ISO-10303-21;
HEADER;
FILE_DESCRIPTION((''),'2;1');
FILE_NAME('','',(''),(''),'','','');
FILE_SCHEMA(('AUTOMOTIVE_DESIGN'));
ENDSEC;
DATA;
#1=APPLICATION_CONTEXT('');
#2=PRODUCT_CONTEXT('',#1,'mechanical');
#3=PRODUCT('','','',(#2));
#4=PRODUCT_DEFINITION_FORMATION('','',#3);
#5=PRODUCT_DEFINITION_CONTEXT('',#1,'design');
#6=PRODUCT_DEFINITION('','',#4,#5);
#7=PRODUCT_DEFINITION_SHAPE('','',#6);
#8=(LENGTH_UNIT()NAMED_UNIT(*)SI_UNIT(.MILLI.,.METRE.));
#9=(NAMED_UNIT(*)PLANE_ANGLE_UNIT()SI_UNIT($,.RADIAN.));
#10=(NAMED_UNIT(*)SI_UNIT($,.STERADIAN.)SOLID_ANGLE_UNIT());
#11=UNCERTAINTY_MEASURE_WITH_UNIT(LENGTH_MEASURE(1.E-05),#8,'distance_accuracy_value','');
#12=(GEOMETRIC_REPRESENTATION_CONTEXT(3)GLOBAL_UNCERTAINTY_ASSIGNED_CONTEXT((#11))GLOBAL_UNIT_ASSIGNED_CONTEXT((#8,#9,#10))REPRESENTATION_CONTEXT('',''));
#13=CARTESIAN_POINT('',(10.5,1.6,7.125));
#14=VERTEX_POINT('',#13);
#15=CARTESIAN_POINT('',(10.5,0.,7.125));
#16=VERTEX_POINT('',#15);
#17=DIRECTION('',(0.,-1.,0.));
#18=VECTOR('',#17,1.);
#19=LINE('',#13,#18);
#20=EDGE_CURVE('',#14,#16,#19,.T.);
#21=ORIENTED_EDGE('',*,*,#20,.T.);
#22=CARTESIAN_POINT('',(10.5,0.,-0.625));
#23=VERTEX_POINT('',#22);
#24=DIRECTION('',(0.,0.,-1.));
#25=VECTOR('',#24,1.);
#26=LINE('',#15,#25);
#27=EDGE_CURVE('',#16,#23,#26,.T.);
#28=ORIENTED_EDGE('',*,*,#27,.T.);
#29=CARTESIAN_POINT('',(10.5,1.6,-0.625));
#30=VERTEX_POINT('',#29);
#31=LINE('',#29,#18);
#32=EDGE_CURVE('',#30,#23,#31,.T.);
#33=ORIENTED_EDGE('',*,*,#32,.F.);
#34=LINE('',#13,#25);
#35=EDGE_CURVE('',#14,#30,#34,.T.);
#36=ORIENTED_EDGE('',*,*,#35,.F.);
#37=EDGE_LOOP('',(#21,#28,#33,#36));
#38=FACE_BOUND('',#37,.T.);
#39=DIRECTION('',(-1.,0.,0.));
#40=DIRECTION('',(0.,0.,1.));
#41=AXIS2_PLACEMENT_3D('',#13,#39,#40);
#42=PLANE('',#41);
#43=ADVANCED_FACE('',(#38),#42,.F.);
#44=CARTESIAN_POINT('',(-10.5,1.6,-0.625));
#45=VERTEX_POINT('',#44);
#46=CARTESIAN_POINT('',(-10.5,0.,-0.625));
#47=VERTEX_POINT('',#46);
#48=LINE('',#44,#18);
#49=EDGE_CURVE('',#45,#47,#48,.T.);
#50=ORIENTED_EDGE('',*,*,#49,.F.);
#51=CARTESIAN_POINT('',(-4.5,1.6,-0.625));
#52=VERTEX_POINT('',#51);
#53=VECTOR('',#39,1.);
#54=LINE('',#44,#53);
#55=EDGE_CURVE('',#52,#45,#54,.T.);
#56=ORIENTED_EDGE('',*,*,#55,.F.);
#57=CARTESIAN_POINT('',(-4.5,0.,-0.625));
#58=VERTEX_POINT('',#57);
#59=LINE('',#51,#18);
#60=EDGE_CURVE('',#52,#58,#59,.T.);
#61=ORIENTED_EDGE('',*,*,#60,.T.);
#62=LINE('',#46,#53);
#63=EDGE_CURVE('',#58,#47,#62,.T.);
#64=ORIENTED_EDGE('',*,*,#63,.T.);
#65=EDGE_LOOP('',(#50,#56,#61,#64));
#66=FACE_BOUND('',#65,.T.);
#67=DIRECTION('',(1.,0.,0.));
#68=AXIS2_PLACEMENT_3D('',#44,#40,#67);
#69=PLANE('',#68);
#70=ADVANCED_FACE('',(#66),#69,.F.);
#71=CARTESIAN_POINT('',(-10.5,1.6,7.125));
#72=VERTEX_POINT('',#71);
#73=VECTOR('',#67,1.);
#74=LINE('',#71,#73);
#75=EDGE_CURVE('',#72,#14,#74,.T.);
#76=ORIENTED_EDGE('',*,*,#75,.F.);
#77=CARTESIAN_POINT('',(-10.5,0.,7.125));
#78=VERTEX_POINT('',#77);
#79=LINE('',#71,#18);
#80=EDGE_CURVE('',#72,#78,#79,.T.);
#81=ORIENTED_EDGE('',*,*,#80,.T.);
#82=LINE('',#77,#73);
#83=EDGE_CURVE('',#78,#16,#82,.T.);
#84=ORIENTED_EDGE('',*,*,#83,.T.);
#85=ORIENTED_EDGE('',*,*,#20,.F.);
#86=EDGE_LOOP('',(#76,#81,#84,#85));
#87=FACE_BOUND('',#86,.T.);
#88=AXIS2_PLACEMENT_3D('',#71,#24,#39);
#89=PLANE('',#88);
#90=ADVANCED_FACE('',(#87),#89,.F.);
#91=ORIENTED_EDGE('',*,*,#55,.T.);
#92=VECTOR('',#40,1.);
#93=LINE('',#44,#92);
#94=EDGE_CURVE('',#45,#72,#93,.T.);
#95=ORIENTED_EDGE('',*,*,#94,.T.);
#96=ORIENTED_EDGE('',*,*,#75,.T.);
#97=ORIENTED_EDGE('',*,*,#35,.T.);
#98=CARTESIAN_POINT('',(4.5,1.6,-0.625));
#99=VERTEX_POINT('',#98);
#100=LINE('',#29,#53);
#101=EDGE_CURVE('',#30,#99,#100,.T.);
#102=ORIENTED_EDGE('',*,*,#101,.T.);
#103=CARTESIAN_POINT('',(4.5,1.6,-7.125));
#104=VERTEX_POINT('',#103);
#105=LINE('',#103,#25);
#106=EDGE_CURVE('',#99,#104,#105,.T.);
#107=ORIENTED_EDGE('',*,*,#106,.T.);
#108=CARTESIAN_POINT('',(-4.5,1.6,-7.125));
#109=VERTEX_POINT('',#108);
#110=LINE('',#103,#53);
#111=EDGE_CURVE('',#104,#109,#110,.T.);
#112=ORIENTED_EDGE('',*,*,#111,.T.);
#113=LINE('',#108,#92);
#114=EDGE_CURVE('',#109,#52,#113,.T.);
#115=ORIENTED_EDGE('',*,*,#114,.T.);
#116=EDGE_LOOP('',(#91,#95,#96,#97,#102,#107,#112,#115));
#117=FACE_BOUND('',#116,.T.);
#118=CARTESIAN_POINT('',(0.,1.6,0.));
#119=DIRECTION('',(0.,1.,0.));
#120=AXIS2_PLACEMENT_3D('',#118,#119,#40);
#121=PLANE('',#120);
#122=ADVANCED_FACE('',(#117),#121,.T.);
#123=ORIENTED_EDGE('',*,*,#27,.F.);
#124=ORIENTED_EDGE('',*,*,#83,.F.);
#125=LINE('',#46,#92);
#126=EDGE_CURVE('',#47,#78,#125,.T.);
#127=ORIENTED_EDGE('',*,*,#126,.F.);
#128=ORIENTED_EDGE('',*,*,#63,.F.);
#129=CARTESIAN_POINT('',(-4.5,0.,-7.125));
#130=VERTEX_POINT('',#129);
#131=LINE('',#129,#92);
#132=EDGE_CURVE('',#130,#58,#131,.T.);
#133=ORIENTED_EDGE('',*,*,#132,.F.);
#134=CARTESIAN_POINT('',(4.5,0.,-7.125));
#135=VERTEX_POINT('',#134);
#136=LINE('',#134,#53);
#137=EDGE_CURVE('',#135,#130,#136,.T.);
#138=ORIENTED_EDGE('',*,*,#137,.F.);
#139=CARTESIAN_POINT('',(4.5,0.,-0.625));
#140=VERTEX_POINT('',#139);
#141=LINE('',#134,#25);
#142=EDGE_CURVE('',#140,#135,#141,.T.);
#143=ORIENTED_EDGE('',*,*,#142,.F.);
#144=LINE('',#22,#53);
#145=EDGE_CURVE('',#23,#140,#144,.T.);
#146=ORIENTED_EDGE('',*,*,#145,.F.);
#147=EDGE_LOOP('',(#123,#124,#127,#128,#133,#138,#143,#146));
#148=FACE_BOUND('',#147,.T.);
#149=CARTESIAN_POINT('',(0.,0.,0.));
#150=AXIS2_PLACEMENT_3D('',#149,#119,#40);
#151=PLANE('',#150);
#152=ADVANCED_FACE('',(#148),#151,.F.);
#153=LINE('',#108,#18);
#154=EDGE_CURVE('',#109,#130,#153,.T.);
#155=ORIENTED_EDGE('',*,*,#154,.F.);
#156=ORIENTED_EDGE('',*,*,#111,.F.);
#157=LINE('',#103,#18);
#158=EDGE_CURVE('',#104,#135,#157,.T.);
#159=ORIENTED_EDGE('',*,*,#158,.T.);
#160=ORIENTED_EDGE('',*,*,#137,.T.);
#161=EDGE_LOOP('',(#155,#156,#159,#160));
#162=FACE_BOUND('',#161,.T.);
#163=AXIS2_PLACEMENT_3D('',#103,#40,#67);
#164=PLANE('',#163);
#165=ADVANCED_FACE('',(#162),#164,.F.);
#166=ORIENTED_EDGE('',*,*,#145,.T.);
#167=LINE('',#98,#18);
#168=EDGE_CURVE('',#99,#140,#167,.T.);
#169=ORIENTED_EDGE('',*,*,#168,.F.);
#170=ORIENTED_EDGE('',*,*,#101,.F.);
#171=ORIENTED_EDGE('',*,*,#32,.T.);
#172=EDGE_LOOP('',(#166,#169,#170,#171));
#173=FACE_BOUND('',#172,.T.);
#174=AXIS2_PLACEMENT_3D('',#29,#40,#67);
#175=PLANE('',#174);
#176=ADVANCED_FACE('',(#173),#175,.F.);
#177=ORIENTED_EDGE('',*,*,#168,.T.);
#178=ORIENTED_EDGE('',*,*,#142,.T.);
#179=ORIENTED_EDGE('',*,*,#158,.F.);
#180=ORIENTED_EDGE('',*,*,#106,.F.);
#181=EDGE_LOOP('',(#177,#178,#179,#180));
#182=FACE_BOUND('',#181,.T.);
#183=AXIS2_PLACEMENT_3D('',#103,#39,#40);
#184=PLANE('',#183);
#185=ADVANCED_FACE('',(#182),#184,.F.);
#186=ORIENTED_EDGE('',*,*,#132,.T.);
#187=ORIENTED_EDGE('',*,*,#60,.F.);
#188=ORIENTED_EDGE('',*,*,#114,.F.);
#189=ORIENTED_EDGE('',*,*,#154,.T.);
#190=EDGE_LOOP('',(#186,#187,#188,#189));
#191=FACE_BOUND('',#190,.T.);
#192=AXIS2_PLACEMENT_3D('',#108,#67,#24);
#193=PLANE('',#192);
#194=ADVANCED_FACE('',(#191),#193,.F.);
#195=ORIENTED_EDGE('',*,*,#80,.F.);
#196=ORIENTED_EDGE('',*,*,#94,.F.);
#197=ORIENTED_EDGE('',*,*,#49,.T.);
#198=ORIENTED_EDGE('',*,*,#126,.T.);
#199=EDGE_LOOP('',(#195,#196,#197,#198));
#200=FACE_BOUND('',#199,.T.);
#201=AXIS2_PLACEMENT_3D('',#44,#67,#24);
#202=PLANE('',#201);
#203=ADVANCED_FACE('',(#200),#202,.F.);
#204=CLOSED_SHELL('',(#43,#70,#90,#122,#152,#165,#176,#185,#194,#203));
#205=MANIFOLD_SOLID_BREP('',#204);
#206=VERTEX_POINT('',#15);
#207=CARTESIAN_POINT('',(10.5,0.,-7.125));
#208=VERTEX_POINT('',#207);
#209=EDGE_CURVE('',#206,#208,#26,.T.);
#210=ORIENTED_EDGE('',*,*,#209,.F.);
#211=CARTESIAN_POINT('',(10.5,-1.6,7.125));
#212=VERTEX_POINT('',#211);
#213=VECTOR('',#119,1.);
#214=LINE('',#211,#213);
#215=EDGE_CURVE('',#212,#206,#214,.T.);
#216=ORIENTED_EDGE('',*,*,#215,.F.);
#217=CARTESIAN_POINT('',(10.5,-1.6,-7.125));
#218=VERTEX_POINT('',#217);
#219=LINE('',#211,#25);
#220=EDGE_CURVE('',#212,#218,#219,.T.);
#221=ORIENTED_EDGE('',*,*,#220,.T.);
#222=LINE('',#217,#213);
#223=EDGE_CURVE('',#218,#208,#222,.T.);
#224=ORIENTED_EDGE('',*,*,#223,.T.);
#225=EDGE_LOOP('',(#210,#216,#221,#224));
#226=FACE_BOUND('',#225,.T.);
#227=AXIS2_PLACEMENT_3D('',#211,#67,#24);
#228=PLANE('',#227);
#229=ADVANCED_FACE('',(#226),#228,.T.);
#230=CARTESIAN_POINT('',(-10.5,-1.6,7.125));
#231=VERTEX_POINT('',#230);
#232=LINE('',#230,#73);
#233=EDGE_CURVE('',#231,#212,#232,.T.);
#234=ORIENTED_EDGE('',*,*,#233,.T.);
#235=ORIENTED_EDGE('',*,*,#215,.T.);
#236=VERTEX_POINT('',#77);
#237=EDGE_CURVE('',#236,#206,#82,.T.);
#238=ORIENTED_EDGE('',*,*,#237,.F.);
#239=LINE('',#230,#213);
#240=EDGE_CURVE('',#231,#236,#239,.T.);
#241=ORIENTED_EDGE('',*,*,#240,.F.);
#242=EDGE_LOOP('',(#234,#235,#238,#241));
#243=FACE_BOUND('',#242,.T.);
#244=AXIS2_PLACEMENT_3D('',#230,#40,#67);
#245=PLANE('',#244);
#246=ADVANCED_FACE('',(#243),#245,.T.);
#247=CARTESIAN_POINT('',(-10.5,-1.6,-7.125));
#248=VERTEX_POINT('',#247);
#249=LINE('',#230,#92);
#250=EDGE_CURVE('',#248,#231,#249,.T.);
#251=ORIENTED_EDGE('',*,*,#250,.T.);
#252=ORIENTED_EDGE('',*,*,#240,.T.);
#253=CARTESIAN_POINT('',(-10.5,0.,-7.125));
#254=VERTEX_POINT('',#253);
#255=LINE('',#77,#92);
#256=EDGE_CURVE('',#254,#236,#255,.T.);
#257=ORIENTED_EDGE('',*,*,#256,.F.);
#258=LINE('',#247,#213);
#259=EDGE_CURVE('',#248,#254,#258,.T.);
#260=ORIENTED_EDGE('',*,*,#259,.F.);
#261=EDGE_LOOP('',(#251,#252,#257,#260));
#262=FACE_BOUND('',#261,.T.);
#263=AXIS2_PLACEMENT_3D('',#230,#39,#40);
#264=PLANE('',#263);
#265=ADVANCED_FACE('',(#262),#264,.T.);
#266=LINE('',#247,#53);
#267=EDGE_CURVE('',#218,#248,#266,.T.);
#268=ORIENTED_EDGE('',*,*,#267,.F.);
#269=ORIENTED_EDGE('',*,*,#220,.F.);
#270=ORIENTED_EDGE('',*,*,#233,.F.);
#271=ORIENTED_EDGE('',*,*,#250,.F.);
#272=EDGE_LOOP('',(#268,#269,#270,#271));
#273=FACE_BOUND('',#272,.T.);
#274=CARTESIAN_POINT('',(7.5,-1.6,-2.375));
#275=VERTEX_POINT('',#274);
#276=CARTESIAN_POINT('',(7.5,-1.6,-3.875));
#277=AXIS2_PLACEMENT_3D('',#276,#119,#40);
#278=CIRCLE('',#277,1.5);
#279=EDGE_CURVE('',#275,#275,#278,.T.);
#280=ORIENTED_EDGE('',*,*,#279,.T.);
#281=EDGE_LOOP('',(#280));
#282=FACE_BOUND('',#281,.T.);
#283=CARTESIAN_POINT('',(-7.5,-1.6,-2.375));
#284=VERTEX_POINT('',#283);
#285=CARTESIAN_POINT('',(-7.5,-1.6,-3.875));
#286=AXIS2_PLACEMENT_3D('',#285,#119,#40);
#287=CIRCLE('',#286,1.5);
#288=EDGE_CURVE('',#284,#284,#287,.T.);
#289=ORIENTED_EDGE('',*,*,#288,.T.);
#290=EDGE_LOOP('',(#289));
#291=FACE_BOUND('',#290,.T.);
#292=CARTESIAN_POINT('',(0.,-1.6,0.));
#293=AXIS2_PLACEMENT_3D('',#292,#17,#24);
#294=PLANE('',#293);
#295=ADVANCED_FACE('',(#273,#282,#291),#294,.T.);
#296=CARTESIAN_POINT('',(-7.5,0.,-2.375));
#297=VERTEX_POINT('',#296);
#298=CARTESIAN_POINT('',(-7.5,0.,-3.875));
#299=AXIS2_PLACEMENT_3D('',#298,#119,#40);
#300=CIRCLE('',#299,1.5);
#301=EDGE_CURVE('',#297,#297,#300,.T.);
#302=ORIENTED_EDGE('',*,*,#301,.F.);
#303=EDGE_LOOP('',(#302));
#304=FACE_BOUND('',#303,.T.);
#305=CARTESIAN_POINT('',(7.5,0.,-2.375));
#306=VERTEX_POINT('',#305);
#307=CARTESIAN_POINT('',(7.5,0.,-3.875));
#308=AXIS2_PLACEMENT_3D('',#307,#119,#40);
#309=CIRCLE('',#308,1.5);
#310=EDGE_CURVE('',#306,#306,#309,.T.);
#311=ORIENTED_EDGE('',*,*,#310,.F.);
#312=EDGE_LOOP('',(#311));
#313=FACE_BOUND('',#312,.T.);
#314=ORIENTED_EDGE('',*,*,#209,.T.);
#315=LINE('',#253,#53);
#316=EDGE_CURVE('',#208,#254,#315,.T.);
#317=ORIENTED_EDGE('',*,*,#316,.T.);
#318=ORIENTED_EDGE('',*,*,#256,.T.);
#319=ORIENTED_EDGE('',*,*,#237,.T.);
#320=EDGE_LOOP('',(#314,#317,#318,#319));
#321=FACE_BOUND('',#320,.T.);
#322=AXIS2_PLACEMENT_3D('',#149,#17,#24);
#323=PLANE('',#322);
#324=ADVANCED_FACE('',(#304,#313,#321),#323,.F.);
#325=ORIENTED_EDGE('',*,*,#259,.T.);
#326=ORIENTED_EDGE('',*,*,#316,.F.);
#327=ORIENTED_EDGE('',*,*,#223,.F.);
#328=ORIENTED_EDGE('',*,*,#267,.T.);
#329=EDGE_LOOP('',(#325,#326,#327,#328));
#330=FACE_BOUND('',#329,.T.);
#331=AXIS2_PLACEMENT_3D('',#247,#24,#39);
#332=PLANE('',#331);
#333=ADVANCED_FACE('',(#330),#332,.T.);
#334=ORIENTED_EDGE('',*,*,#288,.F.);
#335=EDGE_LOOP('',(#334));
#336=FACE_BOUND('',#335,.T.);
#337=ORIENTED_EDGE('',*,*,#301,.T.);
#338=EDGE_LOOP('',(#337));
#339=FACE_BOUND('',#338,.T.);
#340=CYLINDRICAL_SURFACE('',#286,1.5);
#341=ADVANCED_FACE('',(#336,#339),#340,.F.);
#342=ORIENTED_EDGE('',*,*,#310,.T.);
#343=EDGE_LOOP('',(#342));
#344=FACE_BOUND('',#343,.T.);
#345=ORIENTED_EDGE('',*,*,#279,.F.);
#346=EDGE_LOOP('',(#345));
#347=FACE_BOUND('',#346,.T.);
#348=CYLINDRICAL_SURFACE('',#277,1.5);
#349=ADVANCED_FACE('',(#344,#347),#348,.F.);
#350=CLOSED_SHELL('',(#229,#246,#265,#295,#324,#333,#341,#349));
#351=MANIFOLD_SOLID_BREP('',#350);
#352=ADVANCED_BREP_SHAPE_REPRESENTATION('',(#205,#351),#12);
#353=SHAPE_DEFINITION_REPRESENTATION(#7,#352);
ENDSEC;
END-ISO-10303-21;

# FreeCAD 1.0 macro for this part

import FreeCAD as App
import Part
import Sketcher

V = App.Vector
Q = App.Units.Quantity


def add_polygon(sketch, points):
    """Adds a closed chain of lines whose ends are joined by coincident constraints."""
    first, n = sketch.GeometryCount, len(points)
    for a, b in zip(points, points[1:] + points[:1]):
        sketch.addGeometry(Part.LineSegment(App.Vector(*a, 0), App.Vector(*b, 0)), False)
    for i in range(n):
        sketch.addConstraint(Sketcher.Constraint("Coincident", first + i, 2, first + (i + 1) % n, 1))

doc = App.newDocument("Part")
params = doc.addObject("Spreadsheet::Sheet", "Params")
for row, (alias, value) in enumerate([
    ("sketch1_diameter", "3 mm"),
    ("sketch1_width", "21 mm"),
    ("sketch1_height", "14.25 mm"),
    ("pad1_length", "1.6 mm"),
    ("sketch2_width", "6 mm"),
    ("sketch2_width2", "21 mm"),
    ("sketch2_height", "6.5 mm"),
    ("sketch2_height2", "7.75 mm"),
    ("pad2_length", "1.6 mm"),
], start=1):
    params.set(f"A{row}", alias)
    params.set(f"B{row}", "=" + value)
    params.setAlias(f"B{row}", alias)

body = doc.addObject("PartDesign::Body", "Body")

# Sketch on XZ plane
sketch1 = body.newObject("Sketcher::SketchObject", "Sketch")
sketch1.AttachmentSupport = (doc.getObject("XZ_Plane"), [""])
sketch1.MapMode = "FlatFace"
add_polygon(sketch1, [(-10.5, -7.1), (-10.5, 7.1), (10.5, 7.1), (10.5, -7.1)])  # lines 0-3
sketch1.addGeometry(Part.Circle(V(-7.5, -3.9, 0), V(0, 0, 1), 1.5), False)  # 4
sketch1.addGeometry(Part.Circle(V(7.5, -3.9, 0), V(0, 0, 1), 1.5), False)  # 5
sketch1.addConstraint([
    Sketcher.Constraint("Vertical", 0),
    Sketcher.Constraint("Horizontal", 1),
    Sketcher.Constraint("Vertical", 2),
    Sketcher.Constraint("Horizontal", 3),
    Sketcher.Constraint("Equal", 4, 5),
    Sketcher.Constraint("Symmetric", 0, 2, 2, 2, -1, 1),
    Sketcher.Constraint("Symmetric", 4, 3, 5, 3, -2),
    Sketcher.Constraint("Diameter", 4, Q("3 mm")),
    Sketcher.Constraint("DistanceX", 1, 1, 1, 2, Q("21 mm")),
    Sketcher.Constraint("DistanceX", 4, 3, 5, 3, Q("15 mm")),
    Sketcher.Constraint("DistanceY", 4, 3, 0, 2, Q("11 mm")),
    Sketcher.Constraint("DistanceY", 0, 1, 0, 2, Q("14.25 mm")),
])
sketch1.setExpression("Constraints[11]", "Params.sketch1_diameter")
sketch1.setExpression("Constraints[12]", "Params.sketch1_width")
sketch1.setExpression("Constraints[15]", "Params.sketch1_height")
pad1 = body.newObject("PartDesign::Pad", "Pad")
pad1.Profile = sketch1
pad1.setExpression("Length", "Params.pad1_length")
body2 = doc.addObject("PartDesign::Body", "Body001")

# Sketch on XZ plane
sketch2 = body2.newObject("Sketcher::SketchObject", "Sketch001")
sketch2.AttachmentSupport = (doc.getObject("XZ_Plane001"), [""])
sketch2.MapMode = "FlatFace"
add_polygon(sketch2, [(-4, -1), (-10, -1), (-10, 7), (10, 7), (10, -1), (4, -1), (4, -7), (-4, -7)])  # lines 0-7
sketch2.addConstraint([
    Sketcher.Constraint("Horizontal", 0),
    Sketcher.Constraint("Vertical", 1),
    Sketcher.Constraint("Horizontal", 2),
    Sketcher.Constraint("Vertical", 3),
    Sketcher.Constraint("Horizontal", 4),
    Sketcher.Constraint("Vertical", 5),
    Sketcher.Constraint("Horizontal", 6),
    Sketcher.Constraint("Vertical", 7),
    Sketcher.Constraint("Symmetric", 0, 2, 3, 2, -2),
    Sketcher.Constraint("Equal", 0, 4),
    Sketcher.Constraint("DistanceX", 0, 2, 0, 1, Q("6 mm")),
    Sketcher.Constraint("DistanceX", 2, 1, 2, 2, Q("21 mm")),
    Sketcher.Constraint("DistanceY", 5, 2, 5, 1, Q("6.5 mm")),
    Sketcher.Constraint("DistanceY", 1, 1, 1, 2, Q("7.75 mm")),
    Sketcher.Constraint("DistanceY", 0, 2, -1, 1, Q("0.625 mm")),
])
sketch2.setExpression("Constraints[18]", "Params.sketch2_width")
sketch2.setExpression("Constraints[19]", "Params.sketch2_width2")
sketch2.setExpression("Constraints[20]", "Params.sketch2_height")
sketch2.setExpression("Constraints[21]", "Params.sketch2_height2")
pad2 = body2.newObject("PartDesign::Pad", "Pad001")
pad2.Profile = sketch2
pad2.setExpression("Length", "Params.pad2_length")
pad2.Reversed = True

doc.recompute()
